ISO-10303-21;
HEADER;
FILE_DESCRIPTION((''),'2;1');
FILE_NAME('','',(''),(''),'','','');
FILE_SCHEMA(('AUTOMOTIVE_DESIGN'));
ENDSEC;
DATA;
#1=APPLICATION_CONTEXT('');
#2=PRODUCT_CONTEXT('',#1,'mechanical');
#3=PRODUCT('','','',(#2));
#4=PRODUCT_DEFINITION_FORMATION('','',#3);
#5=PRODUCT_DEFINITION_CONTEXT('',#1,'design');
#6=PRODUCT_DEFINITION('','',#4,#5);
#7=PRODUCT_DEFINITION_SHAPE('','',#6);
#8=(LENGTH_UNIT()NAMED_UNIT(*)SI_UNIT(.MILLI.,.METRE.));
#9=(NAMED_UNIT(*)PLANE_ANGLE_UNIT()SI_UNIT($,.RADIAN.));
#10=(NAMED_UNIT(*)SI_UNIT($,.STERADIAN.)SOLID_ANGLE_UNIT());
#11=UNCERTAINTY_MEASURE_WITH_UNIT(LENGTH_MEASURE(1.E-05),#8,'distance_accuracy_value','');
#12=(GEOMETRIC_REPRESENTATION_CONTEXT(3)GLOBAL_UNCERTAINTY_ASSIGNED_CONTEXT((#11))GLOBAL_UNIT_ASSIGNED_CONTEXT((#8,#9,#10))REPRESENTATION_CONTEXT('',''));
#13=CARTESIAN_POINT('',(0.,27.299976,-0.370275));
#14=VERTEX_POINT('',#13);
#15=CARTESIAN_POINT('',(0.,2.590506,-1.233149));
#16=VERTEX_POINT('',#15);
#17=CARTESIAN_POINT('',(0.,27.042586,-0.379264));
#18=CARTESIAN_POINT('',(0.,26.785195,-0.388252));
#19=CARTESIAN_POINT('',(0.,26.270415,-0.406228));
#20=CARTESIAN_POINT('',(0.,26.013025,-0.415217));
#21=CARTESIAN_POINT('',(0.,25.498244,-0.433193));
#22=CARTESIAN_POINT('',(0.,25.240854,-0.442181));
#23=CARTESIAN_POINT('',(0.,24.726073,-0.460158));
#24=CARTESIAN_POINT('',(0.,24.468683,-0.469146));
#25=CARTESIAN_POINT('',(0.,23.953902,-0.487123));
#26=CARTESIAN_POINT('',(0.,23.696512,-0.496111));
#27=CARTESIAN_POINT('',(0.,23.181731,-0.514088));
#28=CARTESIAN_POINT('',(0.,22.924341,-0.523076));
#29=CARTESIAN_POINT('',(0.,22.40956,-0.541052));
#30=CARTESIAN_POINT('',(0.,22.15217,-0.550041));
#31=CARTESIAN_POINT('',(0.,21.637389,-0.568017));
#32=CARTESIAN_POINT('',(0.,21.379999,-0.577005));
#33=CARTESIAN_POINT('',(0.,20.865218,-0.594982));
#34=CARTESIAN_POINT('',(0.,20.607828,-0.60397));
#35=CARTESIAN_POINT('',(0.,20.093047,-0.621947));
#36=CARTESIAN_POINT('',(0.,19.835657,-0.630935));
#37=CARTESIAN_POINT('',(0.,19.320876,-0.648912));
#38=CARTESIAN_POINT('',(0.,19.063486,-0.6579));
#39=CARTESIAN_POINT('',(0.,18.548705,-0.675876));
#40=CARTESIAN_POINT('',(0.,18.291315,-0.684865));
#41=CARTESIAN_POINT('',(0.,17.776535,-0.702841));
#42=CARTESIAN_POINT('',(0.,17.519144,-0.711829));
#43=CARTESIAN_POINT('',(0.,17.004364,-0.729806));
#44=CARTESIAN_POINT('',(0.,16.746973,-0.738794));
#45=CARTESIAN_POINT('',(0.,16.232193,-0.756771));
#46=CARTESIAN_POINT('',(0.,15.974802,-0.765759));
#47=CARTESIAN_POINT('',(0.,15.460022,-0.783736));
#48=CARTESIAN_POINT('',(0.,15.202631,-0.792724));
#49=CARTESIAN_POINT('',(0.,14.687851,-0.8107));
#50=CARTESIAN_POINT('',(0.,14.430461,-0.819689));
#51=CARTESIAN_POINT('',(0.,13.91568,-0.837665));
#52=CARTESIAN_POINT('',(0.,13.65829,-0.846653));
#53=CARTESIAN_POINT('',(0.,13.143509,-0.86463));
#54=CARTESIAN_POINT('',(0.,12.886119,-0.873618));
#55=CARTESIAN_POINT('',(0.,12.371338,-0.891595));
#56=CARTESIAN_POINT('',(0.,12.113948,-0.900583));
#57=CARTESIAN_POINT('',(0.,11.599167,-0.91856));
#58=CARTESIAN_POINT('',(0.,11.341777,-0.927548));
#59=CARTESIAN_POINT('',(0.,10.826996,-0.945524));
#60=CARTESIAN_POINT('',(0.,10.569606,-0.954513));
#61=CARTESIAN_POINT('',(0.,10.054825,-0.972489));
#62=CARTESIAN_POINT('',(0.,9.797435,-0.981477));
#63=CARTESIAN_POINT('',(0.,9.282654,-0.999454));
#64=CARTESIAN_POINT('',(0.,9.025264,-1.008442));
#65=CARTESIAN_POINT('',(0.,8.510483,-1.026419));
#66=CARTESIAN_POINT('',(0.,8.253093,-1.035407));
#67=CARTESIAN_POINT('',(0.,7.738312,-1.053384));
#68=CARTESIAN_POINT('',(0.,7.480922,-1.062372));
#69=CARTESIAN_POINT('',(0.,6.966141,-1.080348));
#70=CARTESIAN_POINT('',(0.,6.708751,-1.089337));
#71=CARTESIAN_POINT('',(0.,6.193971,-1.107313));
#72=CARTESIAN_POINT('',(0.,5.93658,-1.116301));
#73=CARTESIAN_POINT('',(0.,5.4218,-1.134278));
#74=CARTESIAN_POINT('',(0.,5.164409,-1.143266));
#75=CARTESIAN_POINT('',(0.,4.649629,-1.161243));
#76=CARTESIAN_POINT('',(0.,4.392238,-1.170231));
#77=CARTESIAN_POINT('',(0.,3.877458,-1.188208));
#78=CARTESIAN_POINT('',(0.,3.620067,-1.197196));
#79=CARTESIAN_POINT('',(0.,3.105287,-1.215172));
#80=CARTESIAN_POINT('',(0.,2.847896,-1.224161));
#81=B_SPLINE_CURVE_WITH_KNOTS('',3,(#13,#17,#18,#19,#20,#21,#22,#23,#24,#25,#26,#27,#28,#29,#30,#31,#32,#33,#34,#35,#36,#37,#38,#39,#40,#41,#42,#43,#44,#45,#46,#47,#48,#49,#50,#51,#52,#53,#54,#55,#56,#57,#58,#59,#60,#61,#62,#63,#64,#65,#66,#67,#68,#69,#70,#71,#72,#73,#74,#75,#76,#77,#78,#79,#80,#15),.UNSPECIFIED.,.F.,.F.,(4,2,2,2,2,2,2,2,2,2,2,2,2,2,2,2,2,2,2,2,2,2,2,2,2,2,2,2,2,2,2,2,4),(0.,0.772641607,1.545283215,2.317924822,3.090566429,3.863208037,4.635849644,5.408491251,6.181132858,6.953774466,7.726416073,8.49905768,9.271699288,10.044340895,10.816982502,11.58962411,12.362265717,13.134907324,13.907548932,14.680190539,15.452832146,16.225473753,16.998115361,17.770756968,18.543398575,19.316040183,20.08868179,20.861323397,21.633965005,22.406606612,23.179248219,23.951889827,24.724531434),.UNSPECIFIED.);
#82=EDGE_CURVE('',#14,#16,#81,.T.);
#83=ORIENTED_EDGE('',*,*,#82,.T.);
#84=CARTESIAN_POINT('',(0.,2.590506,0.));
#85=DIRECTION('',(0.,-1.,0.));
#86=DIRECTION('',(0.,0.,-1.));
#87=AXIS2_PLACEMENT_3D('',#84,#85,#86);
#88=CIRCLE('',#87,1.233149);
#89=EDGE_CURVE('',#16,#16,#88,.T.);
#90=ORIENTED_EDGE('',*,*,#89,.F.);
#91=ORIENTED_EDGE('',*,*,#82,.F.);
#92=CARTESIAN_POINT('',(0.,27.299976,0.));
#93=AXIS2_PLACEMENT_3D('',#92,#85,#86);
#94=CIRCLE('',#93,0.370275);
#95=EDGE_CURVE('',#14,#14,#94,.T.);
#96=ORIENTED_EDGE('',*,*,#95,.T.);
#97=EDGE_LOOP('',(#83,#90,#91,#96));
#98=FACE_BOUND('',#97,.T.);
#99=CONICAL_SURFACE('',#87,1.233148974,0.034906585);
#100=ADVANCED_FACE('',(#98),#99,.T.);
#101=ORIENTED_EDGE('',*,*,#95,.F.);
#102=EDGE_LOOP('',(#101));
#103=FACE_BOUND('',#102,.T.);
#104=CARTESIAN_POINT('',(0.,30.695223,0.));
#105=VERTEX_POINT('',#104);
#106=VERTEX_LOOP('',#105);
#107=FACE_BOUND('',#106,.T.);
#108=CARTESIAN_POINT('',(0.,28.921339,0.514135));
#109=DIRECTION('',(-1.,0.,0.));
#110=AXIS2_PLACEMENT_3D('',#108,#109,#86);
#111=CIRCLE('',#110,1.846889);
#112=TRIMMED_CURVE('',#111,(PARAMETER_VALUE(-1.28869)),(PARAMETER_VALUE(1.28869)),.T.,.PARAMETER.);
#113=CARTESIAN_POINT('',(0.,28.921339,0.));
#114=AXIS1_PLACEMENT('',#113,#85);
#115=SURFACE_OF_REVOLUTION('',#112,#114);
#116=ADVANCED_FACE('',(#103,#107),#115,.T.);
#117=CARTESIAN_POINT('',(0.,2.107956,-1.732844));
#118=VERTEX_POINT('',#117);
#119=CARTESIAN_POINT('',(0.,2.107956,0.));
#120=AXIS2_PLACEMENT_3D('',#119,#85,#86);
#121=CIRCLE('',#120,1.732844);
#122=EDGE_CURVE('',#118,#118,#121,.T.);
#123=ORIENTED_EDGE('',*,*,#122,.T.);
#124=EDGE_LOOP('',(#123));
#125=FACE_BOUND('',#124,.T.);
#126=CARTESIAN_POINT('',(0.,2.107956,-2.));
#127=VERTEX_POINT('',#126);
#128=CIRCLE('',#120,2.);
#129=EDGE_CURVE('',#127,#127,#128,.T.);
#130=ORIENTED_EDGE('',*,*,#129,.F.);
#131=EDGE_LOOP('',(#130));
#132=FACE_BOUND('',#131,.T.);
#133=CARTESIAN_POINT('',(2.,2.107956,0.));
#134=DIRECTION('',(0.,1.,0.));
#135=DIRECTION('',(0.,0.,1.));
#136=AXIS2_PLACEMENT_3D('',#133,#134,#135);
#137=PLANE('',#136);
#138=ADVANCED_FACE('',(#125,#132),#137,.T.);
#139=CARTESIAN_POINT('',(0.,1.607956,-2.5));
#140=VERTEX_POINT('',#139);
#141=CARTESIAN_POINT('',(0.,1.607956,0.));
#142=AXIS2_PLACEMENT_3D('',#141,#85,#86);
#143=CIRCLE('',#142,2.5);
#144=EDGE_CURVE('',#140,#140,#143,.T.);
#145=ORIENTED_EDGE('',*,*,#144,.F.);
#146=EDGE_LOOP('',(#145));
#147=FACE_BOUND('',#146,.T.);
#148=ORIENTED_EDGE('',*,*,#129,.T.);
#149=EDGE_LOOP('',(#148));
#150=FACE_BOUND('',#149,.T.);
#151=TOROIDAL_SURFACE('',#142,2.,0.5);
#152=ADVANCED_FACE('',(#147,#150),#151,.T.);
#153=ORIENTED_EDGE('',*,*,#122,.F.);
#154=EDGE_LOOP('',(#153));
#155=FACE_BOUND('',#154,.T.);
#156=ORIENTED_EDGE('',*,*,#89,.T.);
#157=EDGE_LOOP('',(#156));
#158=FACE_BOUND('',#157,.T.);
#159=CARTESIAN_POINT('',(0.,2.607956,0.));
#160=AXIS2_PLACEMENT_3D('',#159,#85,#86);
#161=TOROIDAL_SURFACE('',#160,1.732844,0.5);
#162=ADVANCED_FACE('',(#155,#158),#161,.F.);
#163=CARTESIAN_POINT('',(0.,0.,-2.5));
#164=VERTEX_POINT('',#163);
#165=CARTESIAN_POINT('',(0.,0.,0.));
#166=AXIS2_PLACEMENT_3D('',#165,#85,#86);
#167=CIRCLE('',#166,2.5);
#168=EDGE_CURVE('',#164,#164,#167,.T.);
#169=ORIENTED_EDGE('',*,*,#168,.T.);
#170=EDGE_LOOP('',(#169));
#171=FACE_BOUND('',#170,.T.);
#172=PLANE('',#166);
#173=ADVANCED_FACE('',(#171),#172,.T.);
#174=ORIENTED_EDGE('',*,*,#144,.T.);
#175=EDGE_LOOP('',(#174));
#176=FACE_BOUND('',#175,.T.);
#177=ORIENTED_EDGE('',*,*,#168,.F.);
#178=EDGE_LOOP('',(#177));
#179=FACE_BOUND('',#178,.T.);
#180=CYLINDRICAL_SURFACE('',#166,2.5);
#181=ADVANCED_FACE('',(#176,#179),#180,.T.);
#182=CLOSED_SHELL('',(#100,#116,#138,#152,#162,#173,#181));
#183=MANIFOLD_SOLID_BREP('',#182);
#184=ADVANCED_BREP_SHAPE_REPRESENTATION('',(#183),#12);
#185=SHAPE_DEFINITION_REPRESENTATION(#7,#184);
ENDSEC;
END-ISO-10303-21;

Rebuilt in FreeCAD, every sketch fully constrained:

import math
import FreeCAD as App
import Part
import Sketcher
from FreeCAD import Vector
Q = App.Units.Quantity

doc = App.newDocument("Part")
body = doc.addObject("PartDesign::Body", "Body")

# Sketch on XY plane
sketch1 = body.newObject("Sketcher::SketchObject", "Sketch")
sketch1.AttachmentSupport = (doc.getObject("XY_Plane"), [""])
sketch1.MapMode = "FlatFace"
sketch1.addGeometry(Part.LineSegment(Vector(0, 0, 0), Vector(2.5, 0, 0)), False)
sketch1.addGeometry(Part.LineSegment(Vector(2.5, 0, 0), Vector(2.5, 1.61, 0)), False)
sketch1.addGeometry(Part.ArcOfCircle(Part.Circle(Vector(2, 1.61, 0), Vector(0, 0, 1), 0.5), math.radians(0), math.radians(90)), False)
sketch1.addGeometry(Part.LineSegment(Vector(2, 2.11, 0), Vector(1.73, 2.11, 0)), False)
sketch1.addGeometry(Part.ArcOfCircle(Part.Circle(Vector(1.73, 2.61, 0), Vector(0, 0, 1), 0.5), math.radians(-178), math.radians(-90)), False)
sketch1.addGeometry(Part.LineSegment(Vector(1.23, 2.59, 0), Vector(0.37, 27.3, 0)), False)
sketch1.addGeometry(Part.ArcOfCircle(Part.Circle(Vector(-0.51, 28.92, 0), Vector(0, 0, 1), 1.85), math.radians(-61), math.radians(74)), False)
sketch1.addGeometry(Part.LineSegment(Vector(0, 30.7, 0), Vector(0, 0, 0)), False)
sketch1.addConstraint(Sketcher.Constraint("Coincident", 0, 2, 1, 1))
sketch1.addConstraint(Sketcher.Constraint("Tangent", 1, 2, 2, 1))
sketch1.addConstraint(Sketcher.Constraint("Tangent", 2, 2, 3, 1))
sketch1.addConstraint(Sketcher.Constraint("Tangent", 3, 2, 4, 2))
sketch1.addConstraint(Sketcher.Constraint("Tangent", 4, 1, 5, 1))
sketch1.addConstraint(Sketcher.Constraint("Coincident", 5, 2, 6, 1))
sketch1.addConstraint(Sketcher.Constraint("Coincident", 6, 2, 7, 1))
sketch1.addConstraint(Sketcher.Constraint("Coincident", 7, 2, 0, 1))
sketch1.addConstraint(Sketcher.Constraint("Horizontal", 0))
sketch1.addConstraint(Sketcher.Constraint("Vertical", 1))
sketch1.addConstraint(Sketcher.Constraint("Horizontal", 3))
sketch1.addConstraint(Sketcher.Constraint("Vertical", 7))
sketch1.addConstraint(Sketcher.Constraint("Coincident", 7, 2, -1, 1))
sketch1.addConstraint(Sketcher.Constraint("Equal", 2, 4))
sketch1.addConstraint(Sketcher.Constraint("Radius", 2, Q("0.5 mm")))
sketch1.addConstraint(Sketcher.Constraint("Angle", 5, Q("92 deg")))
sketch1.addConstraint(Sketcher.Constraint("DistanceX", 0, 1, 0, 2, Q("2.5 mm")))
sketch1.addConstraint(Sketcher.Constraint("Radius", 6, Q("1.846889 mm")))
sketch1.addConstraint(Sketcher.Constraint("Distance", 5, Q("24.724531 mm")))
sketch1.addConstraint(Sketcher.Constraint("DistanceX", 3, 2, 3, 1, Q("0.267156 mm")))
sketch1.addConstraint(Sketcher.Constraint("DistanceY", 1, 1, 1, 2, Q("1.607956 mm")))
sketch1.addConstraint(Sketcher.Constraint("DistanceY", 7, 2, 7, 1, Q("30.695223 mm")))
revolution = body.newObject("PartDesign::Revolution", "Revolution")
revolution.Profile = sketch1
revolution.ReferenceAxis = (sketch1, ["V_Axis"])
revolution.Angle = 360

doc.recompute()
